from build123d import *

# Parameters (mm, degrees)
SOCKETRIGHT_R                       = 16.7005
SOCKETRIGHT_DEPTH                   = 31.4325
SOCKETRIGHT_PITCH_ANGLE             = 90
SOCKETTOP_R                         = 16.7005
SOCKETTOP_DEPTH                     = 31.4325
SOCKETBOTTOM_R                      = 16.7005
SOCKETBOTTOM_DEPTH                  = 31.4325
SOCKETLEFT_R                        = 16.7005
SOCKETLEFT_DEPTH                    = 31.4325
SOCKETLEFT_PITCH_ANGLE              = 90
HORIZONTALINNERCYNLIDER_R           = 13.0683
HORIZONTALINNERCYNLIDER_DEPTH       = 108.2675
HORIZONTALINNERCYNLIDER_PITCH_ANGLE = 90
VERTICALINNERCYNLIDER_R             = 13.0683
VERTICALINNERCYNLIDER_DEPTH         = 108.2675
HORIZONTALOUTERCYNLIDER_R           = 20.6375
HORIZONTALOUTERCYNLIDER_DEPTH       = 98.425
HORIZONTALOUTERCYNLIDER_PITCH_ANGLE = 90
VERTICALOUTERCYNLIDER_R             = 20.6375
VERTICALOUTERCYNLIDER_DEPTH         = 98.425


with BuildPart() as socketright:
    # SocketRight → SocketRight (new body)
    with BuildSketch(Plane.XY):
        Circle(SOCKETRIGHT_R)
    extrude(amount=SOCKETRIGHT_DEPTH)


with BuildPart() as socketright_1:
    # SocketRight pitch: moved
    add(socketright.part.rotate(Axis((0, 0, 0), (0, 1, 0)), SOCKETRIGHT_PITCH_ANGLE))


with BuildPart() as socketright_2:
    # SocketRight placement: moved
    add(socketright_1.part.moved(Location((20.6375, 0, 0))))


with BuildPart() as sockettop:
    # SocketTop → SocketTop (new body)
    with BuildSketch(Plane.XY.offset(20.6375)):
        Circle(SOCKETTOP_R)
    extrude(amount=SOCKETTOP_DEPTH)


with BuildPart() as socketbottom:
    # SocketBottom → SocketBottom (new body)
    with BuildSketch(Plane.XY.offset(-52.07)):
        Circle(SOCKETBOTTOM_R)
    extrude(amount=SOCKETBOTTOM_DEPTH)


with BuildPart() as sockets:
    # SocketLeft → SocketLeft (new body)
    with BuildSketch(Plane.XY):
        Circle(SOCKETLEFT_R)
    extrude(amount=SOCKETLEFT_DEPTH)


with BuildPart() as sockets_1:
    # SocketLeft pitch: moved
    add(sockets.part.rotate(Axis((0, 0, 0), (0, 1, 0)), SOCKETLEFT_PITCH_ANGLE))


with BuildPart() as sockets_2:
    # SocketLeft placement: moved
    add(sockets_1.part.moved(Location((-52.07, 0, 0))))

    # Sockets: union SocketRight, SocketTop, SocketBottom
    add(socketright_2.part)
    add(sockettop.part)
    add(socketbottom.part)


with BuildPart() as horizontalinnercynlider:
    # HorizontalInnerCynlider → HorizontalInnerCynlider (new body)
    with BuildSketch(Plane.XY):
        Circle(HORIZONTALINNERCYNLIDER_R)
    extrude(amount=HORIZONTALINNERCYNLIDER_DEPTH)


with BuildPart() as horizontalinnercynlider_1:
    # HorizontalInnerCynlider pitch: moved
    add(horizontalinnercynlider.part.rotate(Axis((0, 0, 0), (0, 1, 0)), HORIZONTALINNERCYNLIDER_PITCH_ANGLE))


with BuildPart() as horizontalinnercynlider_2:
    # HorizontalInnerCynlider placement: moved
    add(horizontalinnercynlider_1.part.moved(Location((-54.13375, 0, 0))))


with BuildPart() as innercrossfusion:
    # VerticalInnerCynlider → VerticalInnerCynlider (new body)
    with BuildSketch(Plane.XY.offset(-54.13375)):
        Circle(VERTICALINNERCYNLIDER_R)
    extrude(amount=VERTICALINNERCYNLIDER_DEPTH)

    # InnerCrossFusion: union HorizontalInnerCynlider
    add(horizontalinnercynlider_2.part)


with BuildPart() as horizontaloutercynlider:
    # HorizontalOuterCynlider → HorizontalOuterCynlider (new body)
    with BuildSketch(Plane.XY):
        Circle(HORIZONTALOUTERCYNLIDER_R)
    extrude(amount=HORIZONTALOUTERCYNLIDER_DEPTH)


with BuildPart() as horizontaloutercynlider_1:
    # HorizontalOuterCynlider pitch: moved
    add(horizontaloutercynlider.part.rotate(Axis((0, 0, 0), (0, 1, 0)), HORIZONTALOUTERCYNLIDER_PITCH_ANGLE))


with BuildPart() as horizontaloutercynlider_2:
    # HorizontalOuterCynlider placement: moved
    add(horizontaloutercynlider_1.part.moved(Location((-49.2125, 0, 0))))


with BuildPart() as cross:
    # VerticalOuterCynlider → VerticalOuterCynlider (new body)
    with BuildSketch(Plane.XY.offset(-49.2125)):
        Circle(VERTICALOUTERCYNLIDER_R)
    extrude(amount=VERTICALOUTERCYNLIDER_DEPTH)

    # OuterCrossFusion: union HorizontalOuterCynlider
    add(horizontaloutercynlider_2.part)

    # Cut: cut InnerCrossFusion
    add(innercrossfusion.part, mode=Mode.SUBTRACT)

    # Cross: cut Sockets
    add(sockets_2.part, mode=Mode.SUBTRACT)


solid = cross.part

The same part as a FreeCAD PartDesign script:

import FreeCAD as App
import Part
import Sketcher
Q = App.Units.Quantity

doc = App.newDocument("Part")
body = doc.addObject("PartDesign::Body", "Body")

sketch1 = body.newObject("Sketcher::SketchObject", "Sketch")
sketch1.AttachmentSupport = (doc.getObject("XY_Plane"), [""])
sketch1.MapMode = "FlatFace"
sketch1.addGeometry(Part.Circle(App.Vector(0, 0, 0), App.Vector(0, 0, 1), 17), False)
sketch1.addConstraint([
    Sketcher.Constraint("Coincident", 0, 3, -1, 1),
    Sketcher.Constraint("Diameter", 0, Q("1.315 in")),
])
pad1 = body.newObject("PartDesign::Pad", "Pad")
pad1.Profile = sketch1
pad1.Length = Q("1.2375 in")
body2 = doc.addObject("PartDesign::Body", "Body001")
doc.recompute()

body.Placement = App.Placement(App.Vector(0, 0, 0), App.Rotation(App.Vector(0, 1, 0), 90))
boolean = body2.newObject("PartDesign::Boolean", "Boolean")
boolean.Type = "Fuse"
boolean.addObjects([body])
body3 = doc.addObject("PartDesign::Body", "Body002")
doc.recompute()

body2.Placement = App.Placement(App.Vector(20.6375, 0, 0), App.Rotation(App.Vector(0, 0, 1), 0))
boolean2 = body3.newObject("PartDesign::Boolean", "Boolean001")
boolean2.Type = "Fuse"
boolean2.addObjects([body2])
body4 = doc.addObject("PartDesign::Body", "Body003")

sketch2 = body4.newObject("Sketcher::SketchObject", "Sketch001")
sketch2.AttachmentSupport = (doc.getObject("XY_Plane003"), [""])
sketch2.MapMode = "FlatFace"
sketch2.AttachmentOffset = App.Placement(App.Vector(0, 0, 0.8125 * 25.4), App.Rotation())
sketch2.addGeometry(Part.Circle(App.Vector(0, 0, 0), App.Vector(0, 0, 1), 17), False)
sketch2.addConstraint([
    Sketcher.Constraint("Coincident", 0, 3, -1, 1),
    Sketcher.Constraint("Diameter", 0, Q("1.315 in")),
])
pad2 = body4.newObject("PartDesign::Pad", "Pad001")
pad2.Profile = sketch2
pad2.Length = Q("1.2375 in")
body5 = doc.addObject("PartDesign::Body", "Body004")

sketch3 = body5.newObject("Sketcher::SketchObject", "Sketch002")
sketch3.AttachmentSupport = (doc.getObject("XY_Plane004"), [""])
sketch3.MapMode = "FlatFace"
sketch3.AttachmentOffset = App.Placement(App.Vector(0, 0, -2.05 * 25.4), App.Rotation())
sketch3.addGeometry(Part.Circle(App.Vector(0, 0, 0), App.Vector(0, 0, 1), 17), False)
sketch3.addConstraint([
    Sketcher.Constraint("Coincident", 0, 3, -1, 1),
    Sketcher.Constraint("Diameter", 0, Q("1.315 in")),
])
pad3 = body5.newObject("PartDesign::Pad", "Pad002")
pad3.Profile = sketch3
pad3.Length = Q("1.2375 in")
body6 = doc.addObject("PartDesign::Body", "Body005")

sketch4 = body6.newObject("Sketcher::SketchObject", "Sketch003")
sketch4.AttachmentSupport = (doc.getObject("XY_Plane005"), [""])
sketch4.MapMode = "FlatFace"
sketch4.addGeometry(Part.Circle(App.Vector(0, 0, 0), App.Vector(0, 0, 1), 17), False)
sketch4.addConstraint([
    Sketcher.Constraint("Coincident", 0, 3, -1, 1),
    Sketcher.Constraint("Diameter", 0, Q("1.315 in")),
])
pad4 = body6.newObject("PartDesign::Pad", "Pad003")
pad4.Profile = sketch4
pad4.Length = Q("1.2375 in")
body7 = doc.addObject("PartDesign::Body", "Body006")
doc.recompute()

body6.Placement = App.Placement(App.Vector(0, 0, 0), App.Rotation(App.Vector(0, 1, 0), 90))
boolean3 = body7.newObject("PartDesign::Boolean", "Boolean002")
boolean3.Type = "Fuse"
boolean3.addObjects([body6])
body8 = doc.addObject("PartDesign::Body", "Body007")
body8.AllowCompound = True
doc.recompute()

body7.Placement = App.Placement(App.Vector(-52.07, 0, 0), App.Rotation(App.Vector(0, 0, 1), 0))
boolean4 = body8.newObject("PartDesign::Boolean", "Boolean003")
boolean4.Type = "Fuse"
boolean4.addObjects([body7])
doc.recompute()

boolean5 = body8.newObject("PartDesign::Boolean", "Boolean004")
boolean5.Type = "Fuse"
boolean5.addObjects([body3])
doc.recompute()

boolean6 = body8.newObject("PartDesign::Boolean", "Boolean005")
boolean6.Type = "Fuse"
boolean6.addObjects([body4])
doc.recompute()

boolean7 = body8.newObject("PartDesign::Boolean", "Boolean006")
boolean7.Type = "Fuse"
boolean7.addObjects([body5])
body9 = doc.addObject("PartDesign::Body", "Body008")

sketch5 = body9.newObject("Sketcher::SketchObject", "Sketch004")
sketch5.AttachmentSupport = (doc.getObject("XY_Plane008"), [""])
sketch5.MapMode = "FlatFace"
sketch5.addGeometry(Part.Circle(App.Vector(0, 0, 0), App.Vector(0, 0, 1), 13), False)
sketch5.addConstraint([
    Sketcher.Constraint("Coincident", 0, 3, -1, 1),
    Sketcher.Constraint("Diameter", 0, Q("1.029 in")),
])
pad5 = body9.newObject("PartDesign::Pad", "Pad004")
pad5.Profile = sketch5
pad5.Length = Q("4.2625 in")
body10 = doc.addObject("PartDesign::Body", "Body009")
doc.recompute()

body9.Placement = App.Placement(App.Vector(0, 0, 0), App.Rotation(App.Vector(0, 1, 0), 90))
boolean8 = body10.newObject("PartDesign::Boolean", "Boolean007")
boolean8.Type = "Fuse"
boolean8.addObjects([body9])
body11 = doc.addObject("PartDesign::Body", "Body010")
doc.recompute()

body10.Placement = App.Placement(App.Vector(-54.13375, 0, 0), App.Rotation(App.Vector(0, 0, 1), 0))
boolean9 = body11.newObject("PartDesign::Boolean", "Boolean008")
boolean9.Type = "Fuse"
boolean9.addObjects([body10])
body12 = doc.addObject("PartDesign::Body", "Body011")

sketch6 = body12.newObject("Sketcher::SketchObject", "Sketch005")
sketch6.AttachmentSupport = (doc.getObject("XY_Plane011"), [""])
sketch6.MapMode = "FlatFace"
sketch6.AttachmentOffset = App.Placement(App.Vector(0, 0, -54.13375), App.Rotation())
sketch6.addGeometry(Part.Circle(App.Vector(0, 0, 0), App.Vector(0, 0, 1), 13), False)
sketch6.addConstraint([
    Sketcher.Constraint("Coincident", 0, 3, -1, 1),
    Sketcher.Constraint("Diameter", 0, Q("1.029 in")),
])
pad6 = body12.newObject("PartDesign::Pad", "Pad005")
pad6.Profile = sketch6
pad6.Length = Q("4.2625 in")
doc.recompute()

boolean10 = body12.newObject("PartDesign::Boolean", "Boolean009")
boolean10.Type = "Fuse"
boolean10.addObjects([body11])
body13 = doc.addObject("PartDesign::Body", "Body012")

sketch7 = body13.newObject("Sketcher::SketchObject", "Sketch006")
sketch7.AttachmentSupport = (doc.getObject("XY_Plane012"), [""])
sketch7.MapMode = "FlatFace"
sketch7.addGeometry(Part.Circle(App.Vector(0, 0, 0), App.Vector(0, 0, 1), 21), False)
sketch7.addConstraint([
    Sketcher.Constraint("Coincident", 0, 3, -1, 1),
    Sketcher.Constraint("Diameter", 0, Q("1.625 in")),
])
pad7 = body13.newObject("PartDesign::Pad", "Pad006")
pad7.Profile = sketch7
pad7.Length = Q("3.875 in")
body14 = doc.addObject("PartDesign::Body", "Body013")
doc.recompute()

body13.Placement = App.Placement(App.Vector(0, 0, 0), App.Rotation(App.Vector(0, 1, 0), 90))
boolean11 = body14.newObject("PartDesign::Boolean", "Boolean010")
boolean11.Type = "Fuse"
boolean11.addObjects([body13])
body15 = doc.addObject("PartDesign::Body", "Body014")
doc.recompute()

body14.Placement = App.Placement(App.Vector(-49.2125, 0, 0), App.Rotation(App.Vector(0, 0, 1), 0))
boolean12 = body15.newObject("PartDesign::Boolean", "Boolean011")
boolean12.Type = "Fuse"
boolean12.addObjects([body14])
body16 = doc.addObject("PartDesign::Body", "Body015")

sketch8 = body16.newObject("Sketcher::SketchObject", "Sketch007")
sketch8.AttachmentSupport = (doc.getObject("XY_Plane015"), [""])
sketch8.MapMode = "FlatFace"
sketch8.AttachmentOffset = App.Placement(App.Vector(0, 0, -1.9375 * 25.4), App.Rotation())
sketch8.addGeometry(Part.Circle(App.Vector(0, 0, 0), App.Vector(0, 0, 1), 21), False)
sketch8.addConstraint([
    Sketcher.Constraint("Coincident", 0, 3, -1, 1),
    Sketcher.Constraint("Diameter", 0, Q("1.625 in")),
])
pad8 = body16.newObject("PartDesign::Pad", "Pad007")
pad8.Profile = sketch8
pad8.Length = Q("3.875 in")
doc.recompute()

boolean13 = body16.newObject("PartDesign::Boolean", "Boolean012")
boolean13.Type = "Fuse"
boolean13.addObjects([body15])
doc.recompute()

boolean14 = body16.newObject("PartDesign::Boolean", "Boolean013")
boolean14.Type = "Cut"
boolean14.addObjects([body12])
doc.recompute()

boolean15 = body16.newObject("PartDesign::Boolean", "Boolean014")
boolean15.Type = "Cut"
boolean15.addObjects([body8])

doc.recompute()
